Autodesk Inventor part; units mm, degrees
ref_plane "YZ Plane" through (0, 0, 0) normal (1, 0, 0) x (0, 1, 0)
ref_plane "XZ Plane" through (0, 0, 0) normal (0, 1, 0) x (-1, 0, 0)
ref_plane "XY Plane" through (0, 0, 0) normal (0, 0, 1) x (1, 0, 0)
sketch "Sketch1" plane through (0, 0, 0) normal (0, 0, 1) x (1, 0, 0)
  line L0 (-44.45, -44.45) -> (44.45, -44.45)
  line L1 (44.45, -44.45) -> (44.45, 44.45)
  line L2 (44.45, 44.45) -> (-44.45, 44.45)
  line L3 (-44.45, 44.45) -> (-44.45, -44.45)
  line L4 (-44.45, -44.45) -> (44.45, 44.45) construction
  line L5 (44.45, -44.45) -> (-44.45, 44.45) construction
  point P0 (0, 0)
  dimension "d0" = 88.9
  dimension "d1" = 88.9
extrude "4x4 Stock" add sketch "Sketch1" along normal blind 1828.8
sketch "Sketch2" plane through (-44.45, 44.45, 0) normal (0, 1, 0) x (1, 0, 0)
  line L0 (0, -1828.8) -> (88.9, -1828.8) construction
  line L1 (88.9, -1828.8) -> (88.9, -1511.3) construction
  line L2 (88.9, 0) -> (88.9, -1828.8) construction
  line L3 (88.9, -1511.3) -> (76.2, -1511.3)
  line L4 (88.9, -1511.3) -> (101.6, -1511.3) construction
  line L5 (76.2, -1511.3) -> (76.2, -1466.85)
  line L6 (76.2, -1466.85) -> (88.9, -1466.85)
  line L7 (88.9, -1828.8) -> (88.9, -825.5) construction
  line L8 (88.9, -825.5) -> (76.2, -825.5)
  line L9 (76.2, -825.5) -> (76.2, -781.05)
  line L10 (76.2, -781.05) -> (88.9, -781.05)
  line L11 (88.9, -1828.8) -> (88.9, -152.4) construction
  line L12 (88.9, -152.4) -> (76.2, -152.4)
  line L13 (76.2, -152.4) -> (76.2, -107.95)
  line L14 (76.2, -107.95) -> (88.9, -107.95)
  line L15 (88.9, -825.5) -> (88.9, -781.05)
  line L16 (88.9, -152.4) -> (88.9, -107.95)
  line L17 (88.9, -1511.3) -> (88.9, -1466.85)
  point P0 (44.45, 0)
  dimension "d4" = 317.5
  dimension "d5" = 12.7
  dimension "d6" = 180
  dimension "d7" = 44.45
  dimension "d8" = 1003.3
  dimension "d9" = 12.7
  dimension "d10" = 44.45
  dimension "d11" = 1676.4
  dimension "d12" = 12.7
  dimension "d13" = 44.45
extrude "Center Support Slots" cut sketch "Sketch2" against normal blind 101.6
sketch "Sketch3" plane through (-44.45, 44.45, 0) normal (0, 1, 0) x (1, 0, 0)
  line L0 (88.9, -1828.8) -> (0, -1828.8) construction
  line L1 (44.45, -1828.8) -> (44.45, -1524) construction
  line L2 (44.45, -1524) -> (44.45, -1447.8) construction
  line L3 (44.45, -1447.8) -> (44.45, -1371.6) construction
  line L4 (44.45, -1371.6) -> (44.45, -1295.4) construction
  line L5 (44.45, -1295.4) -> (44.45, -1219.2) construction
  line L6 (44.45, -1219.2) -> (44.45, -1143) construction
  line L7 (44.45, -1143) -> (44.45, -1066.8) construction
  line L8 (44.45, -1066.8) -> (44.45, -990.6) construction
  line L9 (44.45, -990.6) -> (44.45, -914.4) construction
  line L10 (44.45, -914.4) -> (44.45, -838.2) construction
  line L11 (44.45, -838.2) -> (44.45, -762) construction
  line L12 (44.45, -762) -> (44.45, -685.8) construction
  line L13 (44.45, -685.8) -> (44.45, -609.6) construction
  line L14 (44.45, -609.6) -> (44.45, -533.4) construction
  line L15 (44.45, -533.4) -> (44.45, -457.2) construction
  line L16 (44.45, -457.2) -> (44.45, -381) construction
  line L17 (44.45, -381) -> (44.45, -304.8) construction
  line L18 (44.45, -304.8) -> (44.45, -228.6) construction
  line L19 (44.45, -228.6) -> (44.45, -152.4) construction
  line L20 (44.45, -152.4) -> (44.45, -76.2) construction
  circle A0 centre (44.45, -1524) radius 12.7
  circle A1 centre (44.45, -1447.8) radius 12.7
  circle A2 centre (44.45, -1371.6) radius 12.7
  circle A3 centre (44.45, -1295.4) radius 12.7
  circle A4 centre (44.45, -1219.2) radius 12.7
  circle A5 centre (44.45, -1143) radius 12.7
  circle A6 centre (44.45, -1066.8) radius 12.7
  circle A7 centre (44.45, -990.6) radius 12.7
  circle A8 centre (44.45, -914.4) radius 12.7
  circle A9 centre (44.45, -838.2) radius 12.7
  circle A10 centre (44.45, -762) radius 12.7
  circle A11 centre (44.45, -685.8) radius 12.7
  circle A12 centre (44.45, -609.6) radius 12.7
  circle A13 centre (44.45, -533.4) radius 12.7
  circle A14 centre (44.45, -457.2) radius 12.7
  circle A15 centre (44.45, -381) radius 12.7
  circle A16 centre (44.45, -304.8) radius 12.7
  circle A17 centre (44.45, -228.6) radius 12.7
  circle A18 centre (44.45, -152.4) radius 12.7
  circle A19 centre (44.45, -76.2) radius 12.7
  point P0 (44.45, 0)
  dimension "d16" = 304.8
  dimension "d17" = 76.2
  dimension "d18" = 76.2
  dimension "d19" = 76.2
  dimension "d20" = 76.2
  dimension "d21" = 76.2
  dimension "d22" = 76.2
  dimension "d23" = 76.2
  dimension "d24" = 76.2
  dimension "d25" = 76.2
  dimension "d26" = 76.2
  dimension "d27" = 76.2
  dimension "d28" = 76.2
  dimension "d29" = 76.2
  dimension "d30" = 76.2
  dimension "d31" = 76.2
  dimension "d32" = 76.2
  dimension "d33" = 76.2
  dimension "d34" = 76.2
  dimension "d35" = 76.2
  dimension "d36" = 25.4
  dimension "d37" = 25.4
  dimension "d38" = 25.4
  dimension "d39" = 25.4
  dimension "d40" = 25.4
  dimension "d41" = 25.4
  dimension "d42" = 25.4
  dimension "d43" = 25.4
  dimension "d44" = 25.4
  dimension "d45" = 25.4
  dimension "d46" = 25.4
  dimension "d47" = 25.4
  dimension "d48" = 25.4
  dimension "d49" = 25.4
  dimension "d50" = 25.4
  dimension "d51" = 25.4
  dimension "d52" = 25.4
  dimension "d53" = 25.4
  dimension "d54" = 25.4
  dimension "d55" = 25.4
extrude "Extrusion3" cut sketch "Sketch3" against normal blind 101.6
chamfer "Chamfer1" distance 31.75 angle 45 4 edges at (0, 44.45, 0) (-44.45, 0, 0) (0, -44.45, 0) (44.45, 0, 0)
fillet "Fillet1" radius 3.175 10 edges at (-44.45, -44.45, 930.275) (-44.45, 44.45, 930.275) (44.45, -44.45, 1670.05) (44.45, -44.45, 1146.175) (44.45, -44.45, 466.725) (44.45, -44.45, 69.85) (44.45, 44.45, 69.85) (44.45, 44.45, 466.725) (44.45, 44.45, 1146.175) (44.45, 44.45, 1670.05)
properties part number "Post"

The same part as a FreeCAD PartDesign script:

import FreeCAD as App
import Part
import Sketcher
Q = App.Units.Quantity


def edges_at(feature, points):
    """Names of the edges that pass closest to the given points."""
    edges = feature.Shape.Edges
    near = lambda p: min(range(len(edges)), key=lambda i: edges[i].distToShape(Part.Vertex(*p))[0])
    return sorted({f"Edge{near(p) + 1}" for p in points})


def add_polygon(sketch, points):
    """Adds a closed chain of lines whose ends are joined by coincident constraints."""
    first, n = sketch.GeometryCount, len(points)
    for a, b in zip(points, points[1:] + points[:1]):
        sketch.addGeometry(Part.LineSegment(App.Vector(*a, 0), App.Vector(*b, 0)), False)
    for i in range(n):
        sketch.addConstraint(Sketcher.Constraint("Coincident", first + i, 2, first + (i + 1) % n, 1))

doc = App.newDocument("Part")
body = doc.addObject("PartDesign::Body", "Body")

# Sketch on XY plane
sketch1 = doc.addObject("Sketcher::SketchObject", "Sketch")
body.addObject(sketch1)
sketch1.AttachmentSupport = (doc.XY_Plane, [""])
sketch1.MapMode = "FlatFace"
add_polygon(sketch1, [(-44.45, 44.45), (-44.45, -44.45), (44.45, -44.45), (44.45, 44.45)])  # lines 0-3
sketch1.addConstraint([
    Sketcher.Constraint("Vertical", 0),
    Sketcher.Constraint("Horizontal", 1),
    Sketcher.Constraint("Vertical", 2),
    Sketcher.Constraint("Horizontal", 3),
    Sketcher.Constraint("Symmetric", 0, 2, 2, 2, -1, 1),
    Sketcher.Constraint("Equal", 3, 0),
    Sketcher.Constraint("DistanceX", 1, 1, 1, 2, Q("3.5 in")),
])
pad1 = doc.addObject("PartDesign::Pad", "Pad")
body.addObject(pad1)
pad1.Profile = sketch1
pad1.Length = Q("72 in")

# Sketch on XZ plane
sketch2 = doc.addObject("Sketcher::SketchObject", "Sketch001")
body.addObject(sketch2)
sketch2.AttachmentSupport = (doc.XZ_Plane, [""])
sketch2.MapMode = "FlatFace"
sketch2.AttachmentOffset = App.Placement(App.Vector(0, 0, -1.75 * 25.4), App.Rotation())
add_polygon(sketch2, [(31.75, 1511.3), (44.45, 1511.3), (44.45, 1466.85), (31.75, 1466.85)])  # lines 0-3
add_polygon(sketch2, [(31.75, 825.5), (44.45, 825.5), (44.45, 781.05), (31.75, 781.05)])  # lines 4-7
add_polygon(sketch2, [(31.75, 152.4), (44.45, 152.4), (44.45, 107.95), (31.75, 107.95)])  # lines 8-11
sketch2.addConstraint([
    Sketcher.Constraint("Horizontal", 0),
    Sketcher.Constraint("Vertical", 1),
    Sketcher.Constraint("Horizontal", 2),
    Sketcher.Constraint("Vertical", 3),
    Sketcher.Constraint("Horizontal", 4),
    Sketcher.Constraint("Vertical", 5),
    Sketcher.Constraint("Horizontal", 6),
    Sketcher.Constraint("Vertical", 7),
    Sketcher.Constraint("Horizontal", 8),
    Sketcher.Constraint("Vertical", 9),
    Sketcher.Constraint("Horizontal", 10),
    Sketcher.Constraint("Vertical", 11),
    Sketcher.Constraint("Vertical", 1, 2, 4, 2),
    Sketcher.Constraint("Vertical", 3, 2, 6, 2),
    Sketcher.Constraint("Vertical", 5, 2, 8, 2),
    Sketcher.Constraint("Vertical", 7, 2, 10, 2),
    Sketcher.Constraint("Equal", 3, 5),
    Sketcher.Constraint("Equal", 7, 9),
    Sketcher.Constraint("DistanceX", 0, 1, 0, 2, Q("0.5 in")),
    Sketcher.Constraint("DistanceY", 1, 2, 1, 1, Q("1.75 in")),
    Sketcher.Constraint("DistanceX", -1, 1, 0, 2, Q("1.75 in")),
    Sketcher.Constraint("DistanceY", -1, 1, 8, 2, Q("6 in")),
    Sketcher.Constraint("DistanceY", 4, 2, 0, 2, Q("27 in")),
    Sketcher.Constraint("DistanceY", -1, 1, 0, 2, Q("59.5 in")),
])
pocket1 = doc.addObject("PartDesign::Pocket", "Pocket")
body.addObject(pocket1)
pocket1.Profile = sketch2
pocket1.Length = Q("4 in")
pocket1.Reversed = True

# Sketch on XZ plane
sketch3 = doc.addObject("Sketcher::SketchObject", "Sketch002")
body.addObject(sketch3)
sketch3.AttachmentSupport = (doc.XZ_Plane, [""])
sketch3.MapMode = "FlatFace"
sketch3.AttachmentOffset = App.Placement(App.Vector(0, 0, -1.75 * 25.4), App.Rotation())
sketch3.addGeometry([
    Part.Circle(App.Vector(0, 1524, 0), App.Vector(0, 0, 1), 12.7),  # 0
    Part.Circle(App.Vector(0, 1447.8, 0), App.Vector(0, 0, 1), 12.7),  # 1
    Part.Circle(App.Vector(0, 1371.6, 0), App.Vector(0, 0, 1), 12.7),  # 2
    Part.Circle(App.Vector(0, 1295.4, 0), App.Vector(0, 0, 1), 12.7),  # 3
    Part.Circle(App.Vector(0, 1219.2, 0), App.Vector(0, 0, 1), 12.7),  # 4
    Part.Circle(App.Vector(0, 1143, 0), App.Vector(0, 0, 1), 12.7),  # 5
    Part.Circle(App.Vector(0, 1066.8, 0), App.Vector(0, 0, 1), 12.7),  # 6
    Part.Circle(App.Vector(0, 990.6, 0), App.Vector(0, 0, 1), 12.7),  # 7
    Part.Circle(App.Vector(0, 914.4, 0), App.Vector(0, 0, 1), 12.7),  # 8
    Part.Circle(App.Vector(0, 838.2, 0), App.Vector(0, 0, 1), 12.7),  # 9
    Part.Circle(App.Vector(0, 762, 0), App.Vector(0, 0, 1), 12.7),  # 10
    Part.Circle(App.Vector(0, 685.8, 0), App.Vector(0, 0, 1), 12.7),  # 11
    Part.Circle(App.Vector(0, 609.6, 0), App.Vector(0, 0, 1), 12.7),  # 12
    Part.Circle(App.Vector(0, 533.4, 0), App.Vector(0, 0, 1), 12.7),  # 13
    Part.Circle(App.Vector(0, 457.2, 0), App.Vector(0, 0, 1), 12.7),  # 14
    Part.Circle(App.Vector(0, 381, 0), App.Vector(0, 0, 1), 12.7),  # 15
    Part.Circle(App.Vector(0, 304.8, 0), App.Vector(0, 0, 1), 12.7),  # 16
    Part.Circle(App.Vector(0, 228.6, 0), App.Vector(0, 0, 1), 12.7),  # 17
    Part.Circle(App.Vector(0, 152.4, 0), App.Vector(0, 0, 1), 12.7),  # 18
    Part.Circle(App.Vector(0, 76.2, 0), App.Vector(0, 0, 1), 12.7),  # 19
], False)
sketch3.addConstraint([
    Sketcher.Constraint("Equal", 0, 1),
    Sketcher.Constraint("Equal", 1, 2),
    Sketcher.Constraint("Equal", 2, 3),
    Sketcher.Constraint("Equal", 3, 4),
    Sketcher.Constraint("Equal", 4, 5),
    Sketcher.Constraint("Equal", 5, 6),
    Sketcher.Constraint("Equal", 6, 7),
    Sketcher.Constraint("Equal", 7, 8),
    Sketcher.Constraint("Equal", 8, 9),
    Sketcher.Constraint("Equal", 9, 10),
    Sketcher.Constraint("Equal", 10, 11),
    Sketcher.Constraint("Equal", 11, 12),
    Sketcher.Constraint("Equal", 12, 13),
    Sketcher.Constraint("Equal", 13, 14),
    Sketcher.Constraint("Equal", 14, 15),
    Sketcher.Constraint("Equal", 15, 16),
    Sketcher.Constraint("Equal", 16, 17),
    Sketcher.Constraint("Equal", 17, 18),
    Sketcher.Constraint("Equal", 18, 19),
    Sketcher.Constraint("PointOnObject", 0, 3, -2),
    Sketcher.Constraint("PointOnObject", 1, 3, -2),
    Sketcher.Constraint("PointOnObject", 2, 3, -2),
    Sketcher.Constraint("PointOnObject", 3, 3, -2),
    Sketcher.Constraint("PointOnObject", 4, 3, -2),
    Sketcher.Constraint("PointOnObject", 5, 3, -2),
    Sketcher.Constraint("PointOnObject", 6, 3, -2),
    Sketcher.Constraint("PointOnObject", 7, 3, -2),
    Sketcher.Constraint("PointOnObject", 8, 3, -2),
    Sketcher.Constraint("PointOnObject", 9, 3, -2),
    Sketcher.Constraint("PointOnObject", 10, 3, -2),
    Sketcher.Constraint("PointOnObject", 11, 3, -2),
    Sketcher.Constraint("PointOnObject", 12, 3, -2),
    Sketcher.Constraint("PointOnObject", 13, 3, -2),
    Sketcher.Constraint("PointOnObject", 14, 3, -2),
    Sketcher.Constraint("PointOnObject", 15, 3, -2),
    Sketcher.Constraint("PointOnObject", 16, 3, -2),
    Sketcher.Constraint("PointOnObject", 17, 3, -2),
    Sketcher.Constraint("PointOnObject", 18, 3, -2),
    Sketcher.Constraint("PointOnObject", 19, 3, -2),
    Sketcher.Constraint("Diameter", 0, Q("1 in")),
    Sketcher.Constraint("DistanceY", -1, 1, 16, 3, Q("12 in")),
    Sketcher.Constraint("DistanceY", -1, 1, 19, 3, Q("3 in")),
    Sketcher.Constraint("DistanceY", 1, 3, 0, 3, Q("3 in")),
    Sketcher.Constraint("DistanceY", 2, 3, 1, 3, Q("3 in")),
    Sketcher.Constraint("DistanceY", 3, 3, 2, 3, Q("3 in")),
    Sketcher.Constraint("DistanceY", 4, 3, 3, 3, Q("3 in")),
    Sketcher.Constraint("DistanceY", 5, 3, 4, 3, Q("3 in")),
    Sketcher.Constraint("DistanceY", 6, 3, 5, 3, Q("3 in")),
    Sketcher.Constraint("DistanceY", 7, 3, 6, 3, Q("3 in")),
    Sketcher.Constraint("DistanceY", 8, 3, 7, 3, Q("3 in")),
    Sketcher.Constraint("DistanceY", 9, 3, 8, 3, Q("3 in")),
    Sketcher.Constraint("DistanceY", 10, 3, 9, 3, Q("3 in")),
    Sketcher.Constraint("DistanceY", 11, 3, 10, 3, Q("3 in")),
    Sketcher.Constraint("DistanceY", 12, 3, 11, 3, Q("3 in")),
    Sketcher.Constraint("DistanceY", 13, 3, 12, 3, Q("3 in")),
    Sketcher.Constraint("DistanceY", 14, 3, 13, 3, Q("3 in")),
    Sketcher.Constraint("DistanceY", 15, 3, 14, 3, Q("3 in")),
    Sketcher.Constraint("DistanceY", 16, 3, 15, 3, Q("3 in")),
    Sketcher.Constraint("DistanceY", 17, 3, 16, 3, Q("3 in")),
    Sketcher.Constraint("DistanceY", 18, 3, 17, 3, Q("3 in")),
])
pocket2 = doc.addObject("PartDesign::Pocket", "Pocket001")
body.addObject(pocket2)
pocket2.Profile = sketch3
pocket2.Length = Q("4 in")
pocket2.Reversed = True
doc.recompute()

chamfer = doc.addObject("PartDesign::Chamfer", "Chamfer")
body.addObject(chamfer)
chamfer.Base = (pocket2, edges_at(pocket2, [
    (0, 44.45, 0),
    (-44.45, 0, 0),
    (0, -44.45, 0),
    (44.45, 0, 0),
]))
chamfer.Size = Q("1.25 in")
doc.recompute()

fillet = doc.addObject("PartDesign::Fillet", "Fillet")
body.addObject(fillet)
fillet.Base = (chamfer, edges_at(chamfer, [
    (-44.45, -44.45, 930.275),
    (-44.45, 44.45, 930.275),
    (44.45, -44.45, 1670.05),
    (44.45, -44.45, 1146.175),
    (44.45, -44.45, 466.725),
    (44.45, -44.45, 69.85),
    (44.45, 44.45, 69.85),
    (44.45, 44.45, 466.725),
    (44.45, 44.45, 1146.175),
    (44.45, 44.45, 1670.05),
]))
fillet.Radius = Q("0.125 in")

doc.recompute()
